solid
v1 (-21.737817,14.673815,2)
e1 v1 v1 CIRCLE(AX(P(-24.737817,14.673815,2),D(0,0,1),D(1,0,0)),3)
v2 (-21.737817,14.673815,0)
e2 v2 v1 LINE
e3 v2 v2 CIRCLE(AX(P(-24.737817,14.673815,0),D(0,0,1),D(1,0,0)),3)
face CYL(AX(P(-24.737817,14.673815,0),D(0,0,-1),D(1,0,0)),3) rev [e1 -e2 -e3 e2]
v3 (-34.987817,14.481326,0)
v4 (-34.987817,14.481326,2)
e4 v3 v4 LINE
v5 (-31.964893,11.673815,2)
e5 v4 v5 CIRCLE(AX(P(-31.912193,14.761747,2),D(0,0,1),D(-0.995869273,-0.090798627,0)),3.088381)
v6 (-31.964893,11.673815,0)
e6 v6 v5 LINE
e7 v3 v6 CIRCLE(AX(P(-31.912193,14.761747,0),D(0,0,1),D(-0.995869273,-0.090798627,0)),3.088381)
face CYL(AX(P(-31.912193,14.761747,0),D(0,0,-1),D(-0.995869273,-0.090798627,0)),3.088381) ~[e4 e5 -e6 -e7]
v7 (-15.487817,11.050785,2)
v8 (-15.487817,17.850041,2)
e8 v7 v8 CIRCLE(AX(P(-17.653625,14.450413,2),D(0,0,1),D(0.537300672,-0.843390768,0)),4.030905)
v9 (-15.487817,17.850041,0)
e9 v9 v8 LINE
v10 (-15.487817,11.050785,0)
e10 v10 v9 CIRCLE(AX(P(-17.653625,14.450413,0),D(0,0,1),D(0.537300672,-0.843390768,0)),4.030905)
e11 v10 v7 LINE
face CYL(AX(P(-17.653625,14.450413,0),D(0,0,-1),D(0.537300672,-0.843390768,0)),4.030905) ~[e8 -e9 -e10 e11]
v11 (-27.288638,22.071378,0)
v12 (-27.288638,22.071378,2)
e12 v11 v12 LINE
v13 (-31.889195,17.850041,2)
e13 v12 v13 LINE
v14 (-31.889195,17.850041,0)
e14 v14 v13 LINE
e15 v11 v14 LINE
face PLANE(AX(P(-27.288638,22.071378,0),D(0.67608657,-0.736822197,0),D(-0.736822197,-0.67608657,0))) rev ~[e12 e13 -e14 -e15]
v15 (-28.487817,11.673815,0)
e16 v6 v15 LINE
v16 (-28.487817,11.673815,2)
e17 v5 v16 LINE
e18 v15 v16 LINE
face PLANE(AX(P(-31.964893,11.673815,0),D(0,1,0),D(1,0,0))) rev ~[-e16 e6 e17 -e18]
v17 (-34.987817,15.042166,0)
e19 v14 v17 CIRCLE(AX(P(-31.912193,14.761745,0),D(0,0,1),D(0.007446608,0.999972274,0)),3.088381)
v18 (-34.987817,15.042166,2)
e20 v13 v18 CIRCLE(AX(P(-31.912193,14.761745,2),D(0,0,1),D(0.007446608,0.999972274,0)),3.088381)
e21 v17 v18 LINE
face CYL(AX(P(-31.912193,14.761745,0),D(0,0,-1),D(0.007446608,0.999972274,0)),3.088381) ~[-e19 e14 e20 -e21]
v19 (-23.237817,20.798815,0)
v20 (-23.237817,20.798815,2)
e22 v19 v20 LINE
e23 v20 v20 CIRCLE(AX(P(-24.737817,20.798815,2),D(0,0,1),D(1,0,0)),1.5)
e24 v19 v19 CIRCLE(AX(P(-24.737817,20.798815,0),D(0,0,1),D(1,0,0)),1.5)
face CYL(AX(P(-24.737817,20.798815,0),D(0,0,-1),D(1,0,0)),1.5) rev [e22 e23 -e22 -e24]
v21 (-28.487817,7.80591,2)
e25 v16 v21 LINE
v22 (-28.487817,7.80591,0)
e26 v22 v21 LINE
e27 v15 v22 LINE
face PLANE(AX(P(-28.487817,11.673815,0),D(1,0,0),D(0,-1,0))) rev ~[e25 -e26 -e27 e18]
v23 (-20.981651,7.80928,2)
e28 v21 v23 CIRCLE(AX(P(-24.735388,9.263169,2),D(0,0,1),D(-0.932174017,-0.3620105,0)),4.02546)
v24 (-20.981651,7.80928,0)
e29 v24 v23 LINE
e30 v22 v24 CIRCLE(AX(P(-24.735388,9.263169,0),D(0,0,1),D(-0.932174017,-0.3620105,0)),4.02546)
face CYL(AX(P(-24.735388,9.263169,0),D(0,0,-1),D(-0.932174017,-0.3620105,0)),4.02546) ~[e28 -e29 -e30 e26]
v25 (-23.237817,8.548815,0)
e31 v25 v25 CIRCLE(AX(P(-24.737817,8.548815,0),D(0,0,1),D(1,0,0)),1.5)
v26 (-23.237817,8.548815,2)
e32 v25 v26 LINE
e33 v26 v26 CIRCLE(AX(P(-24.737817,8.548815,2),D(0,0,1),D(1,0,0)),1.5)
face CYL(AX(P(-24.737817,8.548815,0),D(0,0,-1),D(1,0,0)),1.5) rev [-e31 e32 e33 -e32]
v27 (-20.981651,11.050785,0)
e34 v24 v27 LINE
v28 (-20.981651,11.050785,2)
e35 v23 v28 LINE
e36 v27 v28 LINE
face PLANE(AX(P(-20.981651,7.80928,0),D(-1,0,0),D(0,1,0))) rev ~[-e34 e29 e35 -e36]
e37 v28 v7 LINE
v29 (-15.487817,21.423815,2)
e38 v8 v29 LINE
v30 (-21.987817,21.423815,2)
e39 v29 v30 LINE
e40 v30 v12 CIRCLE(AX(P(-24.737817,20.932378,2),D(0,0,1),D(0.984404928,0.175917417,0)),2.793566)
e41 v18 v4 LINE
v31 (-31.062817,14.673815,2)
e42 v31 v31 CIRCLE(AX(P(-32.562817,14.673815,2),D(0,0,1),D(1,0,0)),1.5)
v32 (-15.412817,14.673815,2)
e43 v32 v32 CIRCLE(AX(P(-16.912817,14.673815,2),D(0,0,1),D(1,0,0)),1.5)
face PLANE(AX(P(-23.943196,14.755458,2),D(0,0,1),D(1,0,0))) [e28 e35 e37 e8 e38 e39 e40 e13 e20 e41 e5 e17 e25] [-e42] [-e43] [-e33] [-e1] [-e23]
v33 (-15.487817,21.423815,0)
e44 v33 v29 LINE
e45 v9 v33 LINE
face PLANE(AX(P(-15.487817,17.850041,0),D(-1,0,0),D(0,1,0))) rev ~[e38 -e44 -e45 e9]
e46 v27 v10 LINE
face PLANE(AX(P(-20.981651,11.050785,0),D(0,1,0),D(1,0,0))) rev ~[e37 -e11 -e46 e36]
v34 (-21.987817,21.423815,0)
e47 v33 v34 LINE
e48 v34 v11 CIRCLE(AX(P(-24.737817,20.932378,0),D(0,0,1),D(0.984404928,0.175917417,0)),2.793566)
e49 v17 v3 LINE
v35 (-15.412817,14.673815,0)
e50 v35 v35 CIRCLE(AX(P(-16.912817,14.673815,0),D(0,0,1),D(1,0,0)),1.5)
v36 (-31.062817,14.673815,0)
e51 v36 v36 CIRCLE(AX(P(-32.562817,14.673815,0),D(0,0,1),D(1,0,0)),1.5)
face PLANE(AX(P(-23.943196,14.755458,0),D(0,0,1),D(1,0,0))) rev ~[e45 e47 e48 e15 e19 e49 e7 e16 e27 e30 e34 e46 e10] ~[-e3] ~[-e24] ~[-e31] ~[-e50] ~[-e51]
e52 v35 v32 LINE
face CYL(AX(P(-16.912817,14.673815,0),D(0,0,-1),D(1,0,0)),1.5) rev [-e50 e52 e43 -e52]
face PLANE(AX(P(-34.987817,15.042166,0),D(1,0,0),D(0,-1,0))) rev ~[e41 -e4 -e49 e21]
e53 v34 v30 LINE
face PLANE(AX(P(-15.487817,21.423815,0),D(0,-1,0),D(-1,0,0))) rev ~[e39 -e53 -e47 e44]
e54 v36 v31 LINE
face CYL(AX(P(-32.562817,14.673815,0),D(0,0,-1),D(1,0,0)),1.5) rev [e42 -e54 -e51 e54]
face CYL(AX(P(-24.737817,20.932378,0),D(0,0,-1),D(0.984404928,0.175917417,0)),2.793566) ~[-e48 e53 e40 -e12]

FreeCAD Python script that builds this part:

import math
import FreeCAD as App
import Part
import Sketcher
from FreeCAD import Vector

doc = App.newDocument("Part")
body = doc.addObject("PartDesign::Body", "Body")

sketch1 = body.newObject("Sketcher::SketchObject", "Sketch")
sketch1.AttachmentSupport = (doc.getObject("XY_Plane"), [""])
sketch1.MapMode = "FlatFace"
sketch1.addGeometry([
    Part.LineSegment(Vector(-32, 11.7, 0), Vector(-28.5, 11.7, 0)),
    Part.LineSegment(Vector(-28.5, 11.7, 0), Vector(-28.5, 7.8, 0)),
    Part.ArcOfCircle(Part.Circle(Vector(-24.7, 9.3, 0), Vector(0, 0, 1), 4), math.radians(-159), math.radians(-21)),
    Part.LineSegment(Vector(-21, 7.8, 0), Vector(-21, 11.1, 0)),
    Part.LineSegment(Vector(-21, 11.1, 0), Vector(-15.5, 11.1, 0)),
    Part.ArcOfCircle(Part.Circle(Vector(-17.7, 14.5, 0), Vector(0, 0, 1), 4), math.radians(-57), math.radians(57)),
    Part.LineSegment(Vector(-15.5, 17.9, 0), Vector(-15.5, 21.4, 0)),
    Part.LineSegment(Vector(-15.5, 21.4, 0), Vector(-22, 21.4, 0)),
    Part.ArcOfCircle(Part.Circle(Vector(-24.7, 20.9, 0), Vector(0, 0, 1), 2.8), math.radians(10), math.radians(156)),
    Part.LineSegment(Vector(-27.3, 22.1, 0), Vector(-31.9, 17.9, 0)),
    Part.ArcOfCircle(Part.Circle(Vector(-31.9, 14.8, 0), Vector(0, 0, 1), 3.1), math.radians(90), math.radians(175)),
    Part.LineSegment(Vector(-35, 15, 0), Vector(-35, 14.5, 0)),
    Part.ArcOfCircle(Part.Circle(Vector(-31.9, 14.8, 0), Vector(0, 0, 1), 3.1), math.radians(-175), math.radians(-91)),
    Part.Circle(Vector(-32.6, 14.7, 0), Vector(0, 0, 1), 1.5),
    Part.Circle(Vector(-24.7, 8.5, 0), Vector(0, 0, 1), 1.5),
    Part.Circle(Vector(-24.7, 14.7, 0), Vector(0, 0, 1), 3),
    Part.Circle(Vector(-16.9, 14.7, 0), Vector(0, 0, 1), 1.5),
    Part.Circle(Vector(-24.7, 20.8, 0), Vector(0, 0, 1), 1.5),
], False)
sketch1.addConstraint([
    Sketcher.Constraint("Coincident", 0, 2, 1, 1),
    Sketcher.Constraint("Coincident", 1, 2, 2, 1),
    Sketcher.Constraint("Coincident", 2, 2, 3, 1),
    Sketcher.Constraint("Coincident", 3, 2, 4, 1),
    Sketcher.Constraint("Coincident", 4, 2, 5, 1),
    Sketcher.Constraint("Coincident", 5, 2, 6, 1),
    Sketcher.Constraint("Coincident", 6, 2, 7, 1),
    Sketcher.Constraint("Coincident", 7, 2, 8, 1),
    Sketcher.Constraint("Coincident", 8, 2, 9, 1),
    Sketcher.Constraint("Coincident", 9, 2, 10, 1),
    Sketcher.Constraint("Coincident", 10, 2, 11, 1),
    Sketcher.Constraint("Coincident", 11, 2, 12, 1),
    Sketcher.Constraint("Coincident", 12, 2, 0, 1),
    Sketcher.Constraint("Horizontal", 0),
    Sketcher.Constraint("Vertical", 1),
    Sketcher.Constraint("Vertical", 3),
    Sketcher.Constraint("Horizontal", 4),
    Sketcher.Constraint("Vertical", 6),
    Sketcher.Constraint("Horizontal", 7),
    Sketcher.Constraint("Vertical", 11),
    Sketcher.Constraint("Coincident", 12, 3, 10, 3),
    Sketcher.Constraint("Equal", 10, 12),
    Sketcher.Constraint("Equal", 13, 14),
    Sketcher.Constraint("Equal", 14, 16),
    Sketcher.Constraint("Equal", 16, 17),
    Sketcher.Constraint("Horizontal", 13, 3, 15, 3),
    Sketcher.Constraint("Horizontal", 15, 3, 16, 3),
    Sketcher.Constraint("Horizontal", 5, 2, 9, 2),
    Sketcher.Constraint("Vertical", 8, 3, 14, 3),
    Sketcher.Constraint("Vertical", 14, 3, 15, 3),
    Sketcher.Constraint("Vertical", 15, 3, 17, 3),
    Sketcher.Constraint("Vertical", 4, 2, 5, 2),
    Sketcher.Constraint("Diameter", 13, 3.0),
    Sketcher.Constraint("Diameter", 15, 6.0),
    Sketcher.Constraint("DistanceX", 7, 2, 7, 1, 6.5),
    Sketcher.Constraint("DistanceY", 0, 2, 15, 3, 3.0),
    Sketcher.Constraint("DistanceX", 10, 2, 0, 2, 6.5),
    Sketcher.Constraint("Radius", 2, 4.02546),
    Sketcher.Constraint("Radius", 10, 3.088381),
    Sketcher.Constraint("DistanceX", 0, 2, 15, 3, 3.75),
    Sketcher.Constraint("DistanceX", 17, 3, 5, 2, 9.25),
    Sketcher.Constraint("DistanceY", 16, 3, 6, 2, 6.75),
    Sketcher.Constraint("Radius", 5, 4.030905),
    Sketcher.Constraint("Radius", 8, 2.793566),
    Sketcher.Constraint("DistanceX", 13, 3, 8, 3, 7.825),
    Sketcher.Constraint("DistanceY", 14, 3, 13, 3, 6.125),
    Sketcher.Constraint("DistanceX", 15, 3, 16, 3, 7.825),
    Sketcher.Constraint("DistanceY", 15, 3, 17, 3, 6.125),
    Sketcher.Constraint("DistanceY", 8, 3, 8, 2, 1.139),
    Sketcher.Constraint("DistanceY", 11, 2, 11, 1, 0.56084),
    Sketcher.Constraint("DistanceX", 12, 2, 10, 3, 0.0527),
    Sketcher.Constraint("Distance", 9, 6.243782),
    Sketcher.Constraint("DistanceX", 4, 1, 4, 2, 5.493834),
    Sketcher.Constraint("DistanceY", 1, 2, 1, 1, 3.867905),
    Sketcher.Constraint("DistanceY", 3, 1, 3, 2, 3.241505),
    Sketcher.Constraint("DistanceY", -1, 1, 2, 3, 9.263169),
    Sketcher.Constraint("DistanceY", -1, 1, 8, 3, 20.932378),
    Sketcher.Constraint("DistanceX", 2, 2, -1, 1, 20.981651),
])
pad1 = body.newObject("PartDesign::Pad", "Pad")
pad1.Profile = sketch1
pad1.Length = 2

doc.recompute()
